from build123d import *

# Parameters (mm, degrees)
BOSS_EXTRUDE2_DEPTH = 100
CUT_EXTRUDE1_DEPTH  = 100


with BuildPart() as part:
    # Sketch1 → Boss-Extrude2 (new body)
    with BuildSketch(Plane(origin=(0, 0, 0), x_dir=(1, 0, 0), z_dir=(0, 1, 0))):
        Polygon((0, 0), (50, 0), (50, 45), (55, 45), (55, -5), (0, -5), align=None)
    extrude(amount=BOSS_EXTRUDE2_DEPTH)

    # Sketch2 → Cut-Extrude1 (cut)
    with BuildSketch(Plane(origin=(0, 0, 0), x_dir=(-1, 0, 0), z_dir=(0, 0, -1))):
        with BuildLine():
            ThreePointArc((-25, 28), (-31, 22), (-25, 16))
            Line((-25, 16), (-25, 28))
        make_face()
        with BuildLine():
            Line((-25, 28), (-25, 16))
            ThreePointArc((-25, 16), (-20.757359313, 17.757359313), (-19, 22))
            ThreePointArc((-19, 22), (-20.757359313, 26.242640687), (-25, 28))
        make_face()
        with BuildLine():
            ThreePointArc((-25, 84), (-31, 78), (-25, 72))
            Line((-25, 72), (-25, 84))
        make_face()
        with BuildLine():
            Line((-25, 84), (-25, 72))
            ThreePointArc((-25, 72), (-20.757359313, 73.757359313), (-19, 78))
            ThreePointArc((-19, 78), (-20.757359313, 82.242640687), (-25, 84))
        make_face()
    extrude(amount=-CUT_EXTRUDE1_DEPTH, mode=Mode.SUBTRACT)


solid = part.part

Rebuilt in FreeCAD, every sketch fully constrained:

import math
import FreeCAD as App
import Part
import Sketcher

V = App.Vector

doc = App.newDocument("Part")
body = doc.addObject("PartDesign::Body", "Body")

# Sketch on XZ plane
sketch1 = doc.addObject("Sketcher::SketchObject", "Sketch")
body.addObject(sketch1)
sketch1.AttachmentSupport = (doc.XZ_Plane, [""])
sketch1.MapMode = "FlatFace"
sketch1.addGeometry([
    Part.LineSegment(V(50, 0, 0), V(0, 0, 0)),  # 0
    Part.LineSegment(V(0, 0, 0), V(0, 5, 0)),  # 1
    Part.LineSegment(V(0, 5, 0), V(55, 5, 0)),  # 2
    Part.LineSegment(V(55, 5, 0), V(55, -45, 0)),  # 3
    Part.LineSegment(V(55, -45, 0), V(50, -45, 0)),  # 4
    Part.LineSegment(V(50, -45, 0), V(50, 0, 0)),  # 5
], False)
sketch1.addConstraint([
    Sketcher.Constraint("Coincident", 0, 2, 1, 1),
    Sketcher.Constraint("Coincident", 1, 2, 2, 1),
    Sketcher.Constraint("Coincident", 2, 2, 3, 1),
    Sketcher.Constraint("Coincident", 3, 2, 4, 1),
    Sketcher.Constraint("Coincident", 4, 2, 5, 1),
    Sketcher.Constraint("Coincident", 5, 2, 0, 1),
    Sketcher.Constraint("Horizontal", 0),
    Sketcher.Constraint("Vertical", 1),
    Sketcher.Constraint("Horizontal", 2),
    Sketcher.Constraint("Vertical", 3),
    Sketcher.Constraint("Horizontal", 4),
    Sketcher.Constraint("Vertical", 5),
    Sketcher.Constraint("Coincident", 0, 2, -1, 1),
    Sketcher.Constraint("Equal", 4, 1),
    Sketcher.Constraint("Equal", 0, 3),
    Sketcher.Constraint("DistanceX", 0, 2, 0, 1, 50.0),
    Sketcher.Constraint("DistanceX", 2, 1, 2, 2, 55.0),
])
pad1 = doc.addObject("PartDesign::Pad", "Pad")
body.addObject(pad1)
pad1.Profile = sketch1
pad1.Length = 100
pad1.Reversed = True

# Sketch on XY plane
sketch2 = doc.addObject("Sketcher::SketchObject", "Sketch001")
body.addObject(sketch2)
sketch2.AttachmentSupport = (doc.XY_Plane, [""])
sketch2.MapMode = "FlatFace"
sketch2.addGeometry([
    Part.ArcOfCircle(Part.Circle(V(25, 22, 0), V(0, 0, 1), 6), math.radians(-90), math.radians(90)),  # 0
    Part.ArcOfCircle(Part.Circle(V(25, 22, 0), V(0, 0, 1), 6), math.radians(180), math.radians(270)),  # 1
    Part.ArcOfCircle(Part.Circle(V(25, 22, 0), V(0, 0, 1), 6), math.radians(90), math.radians(180)),  # 2
    Part.ArcOfCircle(Part.Circle(V(25, 78, 0), V(0, 0, 1), 6), math.radians(-90), math.radians(90)),  # 3
    Part.ArcOfCircle(Part.Circle(V(25, 78, 0), V(0, 0, 1), 6), math.radians(180), math.radians(270)),  # 4
    Part.ArcOfCircle(Part.Circle(V(25, 78, 0), V(0, 0, 1), 6), math.radians(90), math.radians(180)),  # 5
], False)
sketch2.addConstraint([
    Sketcher.Constraint("Tangent", 0, 1, 1, 2),
    Sketcher.Constraint("Tangent", 1, 1, 2, 2),
    Sketcher.Constraint("Tangent", 2, 1, 0, 2),
    Sketcher.Constraint("Tangent", 3, 1, 4, 2),
    Sketcher.Constraint("Tangent", 4, 1, 5, 2),
    Sketcher.Constraint("Tangent", 5, 1, 3, 2),
    Sketcher.Constraint("Equal", 2, 3),
    Sketcher.Constraint("Horizontal", 2, 3, 1, 1),
    Sketcher.Constraint("Horizontal", 5, 3, 4, 1),
    Sketcher.Constraint("Vertical", 2, 3, 3, 3),
    Sketcher.Constraint("Vertical", 5, 3, 0, 1),
    Sketcher.Constraint("Vertical", 0, 1, 2, 1),
    Sketcher.Constraint("Vertical", 2, 1, 3, 1),
    Sketcher.Constraint("Vertical", 3, 1, 5, 1),
    Sketcher.Constraint("Radius", 0, 6.0),
    Sketcher.Constraint("DistanceX", -1, 1, 0, 3, 25.0),
    Sketcher.Constraint("DistanceY", -1, 1, 0, 3, 22.0),
    Sketcher.Constraint("DistanceY", -1, 1, 3, 3, 78.0),
])
pocket1 = doc.addObject("PartDesign::Pocket", "Pocket")
body.addObject(pocket1)
pocket1.Profile = sketch2
pocket1.Length = 100
pocket1.Reversed = True

doc.recompute()
